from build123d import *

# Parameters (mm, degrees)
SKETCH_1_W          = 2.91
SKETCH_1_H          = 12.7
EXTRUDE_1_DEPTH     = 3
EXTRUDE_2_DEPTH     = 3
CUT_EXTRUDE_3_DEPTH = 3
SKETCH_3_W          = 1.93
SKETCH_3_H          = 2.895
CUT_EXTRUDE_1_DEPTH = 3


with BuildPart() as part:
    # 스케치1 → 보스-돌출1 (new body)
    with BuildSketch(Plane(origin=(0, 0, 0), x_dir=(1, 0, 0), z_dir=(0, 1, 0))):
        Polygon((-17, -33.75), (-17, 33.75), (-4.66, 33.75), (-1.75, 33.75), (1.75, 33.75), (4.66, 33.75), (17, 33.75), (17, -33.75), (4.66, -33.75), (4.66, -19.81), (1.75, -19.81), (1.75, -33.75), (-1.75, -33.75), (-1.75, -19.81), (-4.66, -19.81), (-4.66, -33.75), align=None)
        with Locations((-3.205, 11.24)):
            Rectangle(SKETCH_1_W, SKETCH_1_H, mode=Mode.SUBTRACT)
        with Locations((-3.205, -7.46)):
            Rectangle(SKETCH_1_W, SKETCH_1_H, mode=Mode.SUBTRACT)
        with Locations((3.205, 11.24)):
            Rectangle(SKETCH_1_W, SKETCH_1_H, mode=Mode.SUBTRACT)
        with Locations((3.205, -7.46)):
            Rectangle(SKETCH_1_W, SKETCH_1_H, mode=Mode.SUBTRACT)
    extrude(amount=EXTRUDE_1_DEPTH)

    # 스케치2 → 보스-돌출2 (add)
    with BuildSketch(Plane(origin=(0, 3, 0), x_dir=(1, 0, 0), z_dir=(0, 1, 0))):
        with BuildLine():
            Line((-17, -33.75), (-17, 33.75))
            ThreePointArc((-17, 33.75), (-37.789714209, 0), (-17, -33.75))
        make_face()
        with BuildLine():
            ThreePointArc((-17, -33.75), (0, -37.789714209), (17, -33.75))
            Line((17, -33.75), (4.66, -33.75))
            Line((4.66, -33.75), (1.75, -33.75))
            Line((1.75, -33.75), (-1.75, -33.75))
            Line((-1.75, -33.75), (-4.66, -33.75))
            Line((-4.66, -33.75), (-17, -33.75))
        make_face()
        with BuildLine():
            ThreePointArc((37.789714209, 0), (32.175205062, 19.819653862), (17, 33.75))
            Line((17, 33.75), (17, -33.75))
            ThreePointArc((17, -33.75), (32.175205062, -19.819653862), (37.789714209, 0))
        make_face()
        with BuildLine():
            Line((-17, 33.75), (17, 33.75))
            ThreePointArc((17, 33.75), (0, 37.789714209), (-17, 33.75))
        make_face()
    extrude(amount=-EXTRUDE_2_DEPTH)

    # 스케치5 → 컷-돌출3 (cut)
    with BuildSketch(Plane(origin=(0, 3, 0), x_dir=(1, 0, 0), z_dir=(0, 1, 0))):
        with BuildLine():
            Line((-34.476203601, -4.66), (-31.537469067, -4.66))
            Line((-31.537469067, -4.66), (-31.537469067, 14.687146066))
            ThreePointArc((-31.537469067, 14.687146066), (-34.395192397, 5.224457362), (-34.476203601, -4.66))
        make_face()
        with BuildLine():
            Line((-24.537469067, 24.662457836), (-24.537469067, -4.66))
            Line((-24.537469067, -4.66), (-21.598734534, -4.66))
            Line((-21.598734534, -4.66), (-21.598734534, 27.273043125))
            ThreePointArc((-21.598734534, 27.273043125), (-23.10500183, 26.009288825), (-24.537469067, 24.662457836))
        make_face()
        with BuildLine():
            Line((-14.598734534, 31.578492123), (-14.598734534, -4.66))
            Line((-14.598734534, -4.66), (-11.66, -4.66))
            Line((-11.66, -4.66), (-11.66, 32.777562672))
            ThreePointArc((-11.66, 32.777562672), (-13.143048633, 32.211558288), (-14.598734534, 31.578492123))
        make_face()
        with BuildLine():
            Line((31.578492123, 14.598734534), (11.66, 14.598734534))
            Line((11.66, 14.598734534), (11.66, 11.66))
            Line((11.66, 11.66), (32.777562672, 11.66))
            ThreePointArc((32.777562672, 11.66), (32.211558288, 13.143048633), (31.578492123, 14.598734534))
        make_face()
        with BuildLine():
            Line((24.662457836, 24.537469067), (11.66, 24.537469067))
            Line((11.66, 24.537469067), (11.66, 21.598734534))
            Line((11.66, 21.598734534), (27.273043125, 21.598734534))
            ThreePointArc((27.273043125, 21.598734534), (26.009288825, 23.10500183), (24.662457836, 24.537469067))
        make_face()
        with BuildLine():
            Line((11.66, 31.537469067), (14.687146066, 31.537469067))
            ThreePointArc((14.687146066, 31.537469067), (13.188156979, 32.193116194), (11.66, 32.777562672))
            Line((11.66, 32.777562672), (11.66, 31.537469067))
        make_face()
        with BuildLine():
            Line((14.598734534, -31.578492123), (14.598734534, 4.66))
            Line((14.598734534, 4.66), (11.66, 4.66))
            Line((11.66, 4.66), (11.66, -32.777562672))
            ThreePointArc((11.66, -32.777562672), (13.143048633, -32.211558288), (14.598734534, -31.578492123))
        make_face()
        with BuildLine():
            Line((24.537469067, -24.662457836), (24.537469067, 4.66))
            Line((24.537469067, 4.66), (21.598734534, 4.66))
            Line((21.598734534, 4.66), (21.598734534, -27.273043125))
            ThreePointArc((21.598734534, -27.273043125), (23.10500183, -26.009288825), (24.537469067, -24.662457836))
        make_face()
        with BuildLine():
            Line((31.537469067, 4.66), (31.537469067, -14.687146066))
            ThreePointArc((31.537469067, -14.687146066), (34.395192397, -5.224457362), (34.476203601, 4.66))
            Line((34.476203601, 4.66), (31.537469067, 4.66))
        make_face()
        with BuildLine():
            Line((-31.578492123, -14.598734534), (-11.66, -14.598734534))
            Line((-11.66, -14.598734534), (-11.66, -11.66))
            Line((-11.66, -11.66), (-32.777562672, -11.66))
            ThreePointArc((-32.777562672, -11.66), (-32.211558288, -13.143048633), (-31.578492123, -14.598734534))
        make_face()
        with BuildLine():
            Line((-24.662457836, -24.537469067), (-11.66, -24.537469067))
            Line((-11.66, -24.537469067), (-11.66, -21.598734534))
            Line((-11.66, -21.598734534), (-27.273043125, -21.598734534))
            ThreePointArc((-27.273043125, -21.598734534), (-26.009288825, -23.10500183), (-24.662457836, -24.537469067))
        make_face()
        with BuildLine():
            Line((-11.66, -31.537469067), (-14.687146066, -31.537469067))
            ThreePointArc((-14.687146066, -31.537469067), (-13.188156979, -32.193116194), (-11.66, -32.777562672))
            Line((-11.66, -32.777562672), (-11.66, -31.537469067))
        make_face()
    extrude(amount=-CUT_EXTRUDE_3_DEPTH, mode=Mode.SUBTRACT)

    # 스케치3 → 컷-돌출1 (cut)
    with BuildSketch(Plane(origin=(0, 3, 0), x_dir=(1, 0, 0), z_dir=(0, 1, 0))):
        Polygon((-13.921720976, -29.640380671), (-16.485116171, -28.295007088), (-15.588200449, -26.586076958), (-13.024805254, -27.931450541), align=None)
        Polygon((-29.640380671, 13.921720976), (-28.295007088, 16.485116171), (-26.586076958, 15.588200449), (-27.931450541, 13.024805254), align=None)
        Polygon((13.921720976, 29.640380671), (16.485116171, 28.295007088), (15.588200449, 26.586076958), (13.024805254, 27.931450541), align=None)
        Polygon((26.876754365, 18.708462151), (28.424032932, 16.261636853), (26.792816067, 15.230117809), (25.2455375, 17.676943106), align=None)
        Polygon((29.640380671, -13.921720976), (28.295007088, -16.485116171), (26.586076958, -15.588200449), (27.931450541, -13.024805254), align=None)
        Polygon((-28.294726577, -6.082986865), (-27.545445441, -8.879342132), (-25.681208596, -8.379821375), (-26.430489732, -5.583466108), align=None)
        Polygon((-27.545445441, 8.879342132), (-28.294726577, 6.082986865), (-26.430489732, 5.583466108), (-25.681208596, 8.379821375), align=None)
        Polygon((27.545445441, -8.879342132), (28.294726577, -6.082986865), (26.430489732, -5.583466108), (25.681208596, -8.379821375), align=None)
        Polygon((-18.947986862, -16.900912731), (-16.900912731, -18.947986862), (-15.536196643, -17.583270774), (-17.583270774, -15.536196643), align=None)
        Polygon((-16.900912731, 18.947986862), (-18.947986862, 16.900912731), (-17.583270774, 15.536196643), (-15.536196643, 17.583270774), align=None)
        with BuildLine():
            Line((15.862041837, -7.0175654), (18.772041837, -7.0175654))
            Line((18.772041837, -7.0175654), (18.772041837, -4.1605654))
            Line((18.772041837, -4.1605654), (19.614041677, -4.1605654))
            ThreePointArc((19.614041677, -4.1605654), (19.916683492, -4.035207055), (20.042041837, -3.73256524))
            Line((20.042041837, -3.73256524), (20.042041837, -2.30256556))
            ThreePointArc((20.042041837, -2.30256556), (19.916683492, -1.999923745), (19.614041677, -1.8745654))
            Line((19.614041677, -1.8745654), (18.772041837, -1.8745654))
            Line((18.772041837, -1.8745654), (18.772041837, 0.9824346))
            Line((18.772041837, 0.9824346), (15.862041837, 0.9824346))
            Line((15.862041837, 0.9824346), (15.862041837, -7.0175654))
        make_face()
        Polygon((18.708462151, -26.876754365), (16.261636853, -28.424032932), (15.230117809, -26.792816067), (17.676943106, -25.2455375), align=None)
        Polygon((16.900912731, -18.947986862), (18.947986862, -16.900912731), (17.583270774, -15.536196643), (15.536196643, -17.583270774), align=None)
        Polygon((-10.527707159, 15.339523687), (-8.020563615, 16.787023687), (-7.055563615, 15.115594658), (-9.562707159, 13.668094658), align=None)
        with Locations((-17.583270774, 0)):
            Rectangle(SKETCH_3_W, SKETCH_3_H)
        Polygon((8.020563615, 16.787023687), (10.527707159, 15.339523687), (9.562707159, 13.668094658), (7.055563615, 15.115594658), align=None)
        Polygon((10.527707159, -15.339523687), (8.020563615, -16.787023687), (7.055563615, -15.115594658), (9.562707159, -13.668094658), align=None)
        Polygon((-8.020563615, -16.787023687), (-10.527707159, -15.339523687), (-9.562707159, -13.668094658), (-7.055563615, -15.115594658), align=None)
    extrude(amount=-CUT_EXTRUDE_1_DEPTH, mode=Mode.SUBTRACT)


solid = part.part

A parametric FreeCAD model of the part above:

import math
import FreeCAD as App
import Part
import Sketcher
from FreeCAD import Vector
Q = App.Units.Quantity


def add_polygon(sketch, points):
    """Adds a closed chain of lines whose ends are joined by coincident constraints."""
    first, n = sketch.GeometryCount, len(points)
    for a, b in zip(points, points[1:] + points[:1]):
        sketch.addGeometry(Part.LineSegment(App.Vector(*a, 0), App.Vector(*b, 0)), False)
    for i in range(n):
        sketch.addConstraint(Sketcher.Constraint("Coincident", first + i, 2, first + (i + 1) % n, 1))

doc = App.newDocument("Part")
body = doc.addObject("PartDesign::Body", "Body")

sketch1 = body.newObject("Sketcher::SketchObject", "Sketch")
sketch1.AttachmentSupport = (doc.getObject("XZ_Plane"), [""])
sketch1.MapMode = "FlatFace"
add_polygon(sketch1, [(-17, -33.75), (-17, 33.75), (-4.66, 33.75), (-4.66, 19.81), (-1.75, 19.81), (-1.75, 33.75), (1.75, 33.75), (1.75, 19.81), (4.66, 19.81), (4.66, 33.75), (17, 33.75), (17, -33.75)])
add_polygon(sketch1, [(1.75, 13.81), (1.75, 1.11), (4.66, 1.11), (4.66, 13.81)])
add_polygon(sketch1, [(-4.66, 13.81), (-4.66, 1.11), (-1.75, 1.11), (-1.75, 13.81)])
add_polygon(sketch1, [(1.75, -4.89), (1.75, -17.59), (4.66, -17.59), (4.66, -4.89)])
add_polygon(sketch1, [(-4.66, -4.89), (-4.66, -17.59), (-1.75, -17.59), (-1.75, -4.89)])
sketch1.addConstraint(Sketcher.Constraint("Vertical", 0))
sketch1.addConstraint(Sketcher.Constraint("Horizontal", 1))
sketch1.addConstraint(Sketcher.Constraint("Vertical", 2))
sketch1.addConstraint(Sketcher.Constraint("Horizontal", 3))
sketch1.addConstraint(Sketcher.Constraint("Vertical", 4))
sketch1.addConstraint(Sketcher.Constraint("Horizontal", 5))
sketch1.addConstraint(Sketcher.Constraint("Vertical", 6))
sketch1.addConstraint(Sketcher.Constraint("Horizontal", 7))
sketch1.addConstraint(Sketcher.Constraint("Vertical", 8))
sketch1.addConstraint(Sketcher.Constraint("Horizontal", 9))
sketch1.addConstraint(Sketcher.Constraint("Vertical", 10))
sketch1.addConstraint(Sketcher.Constraint("Horizontal", 11))
sketch1.addConstraint(Sketcher.Constraint("Vertical", 12))
sketch1.addConstraint(Sketcher.Constraint("Horizontal", 13))
sketch1.addConstraint(Sketcher.Constraint("Vertical", 14))
sketch1.addConstraint(Sketcher.Constraint("Horizontal", 15))
sketch1.addConstraint(Sketcher.Constraint("Vertical", 16))
sketch1.addConstraint(Sketcher.Constraint("Horizontal", 17))
sketch1.addConstraint(Sketcher.Constraint("Vertical", 18))
sketch1.addConstraint(Sketcher.Constraint("Horizontal", 19))
sketch1.addConstraint(Sketcher.Constraint("Vertical", 20))
sketch1.addConstraint(Sketcher.Constraint("Horizontal", 21))
sketch1.addConstraint(Sketcher.Constraint("Vertical", 22))
sketch1.addConstraint(Sketcher.Constraint("Horizontal", 23))
sketch1.addConstraint(Sketcher.Constraint("Vertical", 24))
sketch1.addConstraint(Sketcher.Constraint("Horizontal", 25))
sketch1.addConstraint(Sketcher.Constraint("Vertical", 26))
sketch1.addConstraint(Sketcher.Constraint("Horizontal", 27))
sketch1.addConstraint(Sketcher.Constraint("Symmetric", 0, 2, 10, 2, -1, 1))
sketch1.addConstraint(Sketcher.Constraint("Symmetric", 3, 2, 6, 2, -2))
sketch1.addConstraint(Sketcher.Constraint("Symmetric", 1, 2, 8, 2, -2))
sketch1.addConstraint(Sketcher.Constraint("Symmetric", 13, 2, 16, 2, -2))
sketch1.addConstraint(Sketcher.Constraint("Symmetric", 15, 2, 18, 2, -2))
sketch1.addConstraint(Sketcher.Constraint("Symmetric", 21, 2, 24, 2, -2))
sketch1.addConstraint(Sketcher.Constraint("Symmetric", 23, 2, 26, 2, -2))
sketch1.addConstraint(Sketcher.Constraint("Horizontal", 1, 2, 4, 2))
sketch1.addConstraint(Sketcher.Constraint("Vertical", 6, 2, 12, 2))
sketch1.addConstraint(Sketcher.Constraint("Vertical", 8, 2, 13, 2))
sketch1.addConstraint(Sketcher.Constraint("Vertical", 15, 2, 20, 2))
sketch1.addConstraint(Sketcher.Constraint("Vertical", 14, 2, 21, 2))
sketch1.addConstraint(Sketcher.Constraint("Equal", 18, 20))
sketch1.addConstraint(Sketcher.Constraint("DistanceX", 11, 2, 11, 1, 34.0))
sketch1.addConstraint(Sketcher.Constraint("DistanceX", 5, 1, 5, 2, 3.5))
sketch1.addConstraint(Sketcher.Constraint("DistanceY", 0, 1, 0, 2, 67.5))
sketch1.addConstraint(Sketcher.Constraint("DistanceY", 12, 2, 12, 1, 12.7))
sketch1.addConstraint(Sketcher.Constraint("DistanceY", 14, 2, 7, 2, 6.0))
sketch1.addConstraint(Sketcher.Constraint("DistanceY", 22, 2, 13, 2, 6.0))
sketch1.addConstraint(Sketcher.Constraint("DistanceX", 1, 1, 1, 2, 12.34))
sketch1.addConstraint(Sketcher.Constraint("DistanceY", 2, 2, 2, 1, 13.94))
pad1 = body.newObject("PartDesign::Pad", "Pad")
pad1.Profile = sketch1
pad1.Length = 3
pad1.Reversed = True

sketch2 = body.newObject("Sketcher::SketchObject", "Sketch001")
sketch2.AttachmentSupport = (doc.getObject("XZ_Plane"), [""])
sketch2.MapMode = "FlatFace"
sketch2.AttachmentOffset = App.Placement(Vector(0, 0, -3), App.Rotation())
sketch2.addGeometry(Part.LineSegment(Vector(-17, 33.75, 0), Vector(-17, -33.75, 0)), False)
sketch2.addGeometry(Part.ArcOfCircle(Part.Circle(Vector(0, 0, 0), Vector(0, 0, 1), 37.789714), math.radians(116.734565), math.radians(243.265435)), False)
sketch2.addGeometry(Part.ArcOfCircle(Part.Circle(Vector(0, 0, 0), Vector(0, 0, 1), 37.789714), math.radians(63.265435), math.radians(116.734565)), False)
sketch2.addGeometry(Part.LineSegment(Vector(17, 33.75, 0), Vector(-17, 33.75, 0)), False)
sketch2.addGeometry(Part.ArcOfCircle(Part.Circle(Vector(0, 0, 0), Vector(0, 0, 1), 37.789714), math.radians(-63.265435), math.radians(0)), False)
sketch2.addGeometry(Part.LineSegment(Vector(17, -33.75, 0), Vector(17, 33.75, 0)), False)
sketch2.addGeometry(Part.ArcOfCircle(Part.Circle(Vector(0, 0, 0), Vector(0, 0, 1), 37.789714), math.radians(0), math.radians(63.265435)), False)
sketch2.addGeometry(Part.LineSegment(Vector(-17, -33.75, 0), Vector(17, -33.75, 0)), False)
sketch2.addGeometry(Part.ArcOfCircle(Part.Circle(Vector(0, 0, 0), Vector(0, 0, 1), 37.789714), math.radians(-116.734565), math.radians(-63.265435)), False)
sketch2.addConstraint(Sketcher.Constraint("Coincident", 0, 1, 1, 1))
sketch2.addConstraint(Sketcher.Constraint("Coincident", 1, 2, 0, 2))
sketch2.addConstraint(Sketcher.Constraint("Coincident", 2, 1, 3, 1))
sketch2.addConstraint(Sketcher.Constraint("Coincident", 3, 2, 2, 2))
sketch2.addConstraint(Sketcher.Constraint("Coincident", 4, 1, 5, 1))
sketch2.addConstraint(Sketcher.Constraint("Coincident", 5, 2, 6, 2))
sketch2.addConstraint(Sketcher.Constraint("Tangent", 6, 1, 4, 2))
sketch2.addConstraint(Sketcher.Constraint("Coincident", 7, 1, 8, 1))
sketch2.addConstraint(Sketcher.Constraint("Coincident", 8, 2, 7, 2))
sketch2.addConstraint(Sketcher.Constraint("Vertical", 0))
sketch2.addConstraint(Sketcher.Constraint("Horizontal", 3))
sketch2.addConstraint(Sketcher.Constraint("Vertical", 5))
sketch2.addConstraint(Sketcher.Constraint("Horizontal", 7))
sketch2.addConstraint(Sketcher.Constraint("Coincident", 1, 3, -1, 1))
sketch2.addConstraint(Sketcher.Constraint("Coincident", 2, 3, -1, 1))
sketch2.addConstraint(Sketcher.Constraint("Coincident", 4, 3, -1, 1))
sketch2.addConstraint(Sketcher.Constraint("Coincident", 8, 3, -1, 1))
sketch2.addConstraint(Sketcher.Constraint("Coincident", 3, 2, 0, 1))
sketch2.addConstraint(Sketcher.Constraint("Coincident", 5, 2, 2, 1))
sketch2.addConstraint(Sketcher.Constraint("Coincident", 7, 1, 1, 2))
sketch2.addConstraint(Sketcher.Constraint("Equal", 2, 4))
sketch2.addConstraint(Sketcher.Constraint("PointOnObject", 6, 1, -1))
sketch2.addConstraint(Sketcher.Constraint("DistanceX", 3, 2, 3, 1, 34.0))
sketch2.addConstraint(Sketcher.Constraint("DistanceY", 0, 2, 0, 1, 67.5))
pad2 = body.newObject("PartDesign::Pad", "Pad001")
pad2.Profile = sketch2
pad2.Length = 3

sketch3 = body.newObject("Sketcher::SketchObject", "Sketch002")
sketch3.AttachmentSupport = (doc.getObject("XZ_Plane"), [""])
sketch3.MapMode = "FlatFace"
sketch3.AttachmentOffset = App.Placement(Vector(0, 0, -3), App.Rotation())
sketch3.addGeometry(Part.LineSegment(Vector(-34.476204, 4.66, 0), Vector(-31.537469, 4.66, 0)), False)
sketch3.addGeometry(Part.LineSegment(Vector(-31.537469, 4.66, 0), Vector(-31.537469, -14.687146, 0)), False)
sketch3.addGeometry(Part.ArcOfCircle(Part.Circle(Vector(0, 0, 0), Vector(0, 0, 1), 34.789714), math.radians(172.302229), math.radians(204.971615)), False)
sketch3.addGeometry(Part.LineSegment(Vector(-24.537469, -24.662458, 0), Vector(-24.537469, 4.66, 0)), False)
sketch3.addGeometry(Part.LineSegment(Vector(-24.537469, 4.66, 0), Vector(-21.598735, 4.66, 0)), False)
sketch3.addGeometry(Part.LineSegment(Vector(-21.598735, 4.66, 0), Vector(-21.598735, -27.273043, 0)), False)
sketch3.addGeometry(Part.ArcOfCircle(Part.Circle(Vector(0, 0, 0), Vector(0, 0, 1), 34.789714), math.radians(-134.854445), math.radians(-128.377267)), False)
sketch3.addGeometry(Part.LineSegment(Vector(-14.598735, -31.578492, 0), Vector(-14.598735, 4.66, 0)), False)
sketch3.addGeometry(Part.LineSegment(Vector(-14.598735, 4.66, 0), Vector(-11.66, 4.66, 0)), False)
sketch3.addGeometry(Part.LineSegment(Vector(-11.66, 4.66, 0), Vector(-11.66, -32.777563, 0)), False)
sketch3.addGeometry(Part.ArcOfCircle(Part.Circle(Vector(0, 0, 0), Vector(0, 0, 1), 34.789715), math.radians(-114.811097), math.radians(-109.582057)), False)
sketch3.addGeometry(Part.LineSegment(Vector(31.578492, -14.598735, 0), Vector(11.66, -14.598735, 0)), False)
sketch3.addGeometry(Part.LineSegment(Vector(11.66, -14.598735, 0), Vector(11.66, -11.66, 0)), False)
sketch3.addGeometry(Part.LineSegment(Vector(11.66, -11.66, 0), Vector(32.777563, -11.66, 0)), False)
sketch3.addGeometry(Part.ArcOfCircle(Part.Circle(Vector(0, 0, 0), Vector(0, 0, 1), 34.789715), math.radians(-24.811097), math.radians(-19.582057)), False)
sketch3.addGeometry(Part.LineSegment(Vector(24.662458, -24.537469, 0), Vector(11.66, -24.537469, 0)), False)
sketch3.addGeometry(Part.LineSegment(Vector(11.66, -24.537469, 0), Vector(11.66, -21.598735, 0)), False)
sketch3.addGeometry(Part.LineSegment(Vector(11.66, -21.598735, 0), Vector(27.273043, -21.598735, 0)), False)
sketch3.addGeometry(Part.ArcOfCircle(Part.Circle(Vector(0, 0, 0), Vector(0, 0, 1), 34.789714), math.radians(-44.854445), math.radians(-38.377267)), False)
sketch3.addGeometry(Part.LineSegment(Vector(11.66, -31.537469, 0), Vector(14.687146, -31.537469, 0)), False)
sketch3.addGeometry(Part.ArcOfCircle(Part.Circle(Vector(0, -0.000001, 0), Vector(0, 0, 1), 34.789713), math.radians(-70.417943), math.radians(-65.028385)), False)
sketch3.addGeometry(Part.LineSegment(Vector(11.66, -32.777563, 0), Vector(11.66, -31.537469, 0)), False)
sketch3.addGeometry(Part.LineSegment(Vector(14.598735, 31.578492, 0), Vector(14.598735, -4.66, 0)), False)
sketch3.addGeometry(Part.LineSegment(Vector(14.598735, -4.66, 0), Vector(11.66, -4.66, 0)), False)
sketch3.addGeometry(Part.LineSegment(Vector(11.66, -4.66, 0), Vector(11.66, 32.777563, 0)), False)
sketch3.addGeometry(Part.ArcOfCircle(Part.Circle(Vector(0, 0, 0), Vector(0, 0, 1), 34.789715), math.radians(65.188903), math.radians(70.417943)), False)
sketch3.addGeometry(Part.LineSegment(Vector(24.537469, 24.662458, 0), Vector(24.537469, -4.66, 0)), False)
sketch3.addGeometry(Part.LineSegment(Vector(24.537469, -4.66, 0), Vector(21.598735, -4.66, 0)), False)
sketch3.addGeometry(Part.LineSegment(Vector(21.598735, -4.66, 0), Vector(21.598735, 27.273043, 0)), False)
sketch3.addGeometry(Part.ArcOfCircle(Part.Circle(Vector(0, 0, 0), Vector(0, 0, 1), 34.789714), math.radians(45.145555), math.radians(51.622733)), False)
sketch3.addGeometry(Part.LineSegment(Vector(31.537469, -4.66, 0), Vector(31.537469, 14.687146, 0)), False)
sketch3.addGeometry(Part.ArcOfCircle(Part.Circle(Vector(0, 0, 0), Vector(0, 0, 1), 34.789714), math.radians(-7.697771), math.radians(24.971615)), False)
sketch3.addGeometry(Part.LineSegment(Vector(34.476204, -4.66, 0), Vector(31.537469, -4.66, 0)), False)
sketch3.addGeometry(Part.LineSegment(Vector(-31.578492, 14.598735, 0), Vector(-11.66, 14.598735, 0)), False)
sketch3.addGeometry(Part.LineSegment(Vector(-11.66, 14.598735, 0), Vector(-11.66, 11.66, 0)), False)
sketch3.addGeometry(Part.LineSegment(Vector(-11.66, 11.66, 0), Vector(-32.777563, 11.66, 0)), False)
sketch3.addGeometry(Part.ArcOfCircle(Part.Circle(Vector(0, 0, 0), Vector(0, 0, 1), 34.789715), math.radians(155.188903), math.radians(160.417943)), False)
sketch3.addGeometry(Part.LineSegment(Vector(-24.662458, 24.537469, 0), Vector(-11.66, 24.537469, 0)), False)
sketch3.addGeometry(Part.LineSegment(Vector(-11.66, 24.537469, 0), Vector(-11.66, 21.598735, 0)), False)
sketch3.addGeometry(Part.LineSegment(Vector(-11.66, 21.598735, 0), Vector(-27.273043, 21.598735, 0)), False)
sketch3.addGeometry(Part.ArcOfCircle(Part.Circle(Vector(0, 0, 0), Vector(0, 0, 1), 34.789714), math.radians(135.145555), math.radians(141.622733)), False)
sketch3.addGeometry(Part.LineSegment(Vector(-11.66, 31.537469, 0), Vector(-14.687146, 31.537469, 0)), False)
sketch3.addGeometry(Part.ArcOfCircle(Part.Circle(Vector(0, 0.000001, 0), Vector(0, 0, 1), 34.789713), math.radians(109.582057), math.radians(114.971615)), False)
sketch3.addGeometry(Part.LineSegment(Vector(-11.66, 32.777563, 0), Vector(-11.66, 31.537469, 0)), False)
sketch3.addConstraint(Sketcher.Constraint("Coincident", 0, 2, 1, 1))
sketch3.addConstraint(Sketcher.Constraint("Coincident", 1, 2, 2, 2))
sketch3.addConstraint(Sketcher.Constraint("Coincident", 2, 1, 0, 1))
sketch3.addConstraint(Sketcher.Constraint("Coincident", 3, 2, 4, 1))
sketch3.addConstraint(Sketcher.Constraint("Coincident", 4, 2, 5, 1))
sketch3.addConstraint(Sketcher.Constraint("Coincident", 5, 2, 6, 2))
sketch3.addConstraint(Sketcher.Constraint("Coincident", 6, 1, 3, 1))
sketch3.addConstraint(Sketcher.Constraint("Coincident", 7, 2, 8, 1))
sketch3.addConstraint(Sketcher.Constraint("Coincident", 8, 2, 9, 1))
sketch3.addConstraint(Sketcher.Constraint("Coincident", 9, 2, 10, 2))
sketch3.addConstraint(Sketcher.Constraint("Coincident", 10, 1, 7, 1))
sketch3.addConstraint(Sketcher.Constraint("Coincident", 11, 2, 12, 1))
sketch3.addConstraint(Sketcher.Constraint("Coincident", 12, 2, 13, 1))
sketch3.addConstraint(Sketcher.Constraint("Coincident", 13, 2, 14, 2))
sketch3.addConstraint(Sketcher.Constraint("Coincident", 14, 1, 11, 1))
sketch3.addConstraint(Sketcher.Constraint("Coincident", 15, 2, 16, 1))
sketch3.addConstraint(Sketcher.Constraint("Coincident", 16, 2, 17, 1))
sketch3.addConstraint(Sketcher.Constraint("Coincident", 17, 2, 18, 2))
sketch3.addConstraint(Sketcher.Constraint("Coincident", 18, 1, 15, 1))
sketch3.addConstraint(Sketcher.Constraint("Coincident", 19, 2, 20, 2))
sketch3.addConstraint(Sketcher.Constraint("Coincident", 20, 1, 21, 1))
sketch3.addConstraint(Sketcher.Constraint("Coincident", 21, 2, 19, 1))
sketch3.addConstraint(Sketcher.Constraint("Coincident", 22, 2, 23, 1))
sketch3.addConstraint(Sketcher.Constraint("Coincident", 23, 2, 24, 1))
sketch3.addConstraint(Sketcher.Constraint("Coincident", 24, 2, 25, 2))
sketch3.addConstraint(Sketcher.Constraint("Coincident", 25, 1, 22, 1))
sketch3.addConstraint(Sketcher.Constraint("Coincident", 26, 2, 27, 1))
sketch3.addConstraint(Sketcher.Constraint("Coincident", 27, 2, 28, 1))
sketch3.addConstraint(Sketcher.Constraint("Coincident", 28, 2, 29, 2))
sketch3.addConstraint(Sketcher.Constraint("Coincident", 29, 1, 26, 1))
sketch3.addConstraint(Sketcher.Constraint("Coincident", 30, 2, 31, 2))
sketch3.addConstraint(Sketcher.Constraint("Coincident", 31, 1, 32, 1))
sketch3.addConstraint(Sketcher.Constraint("Coincident", 32, 2, 30, 1))
sketch3.addConstraint(Sketcher.Constraint("Coincident", 33, 2, 34, 1))
sketch3.addConstraint(Sketcher.Constraint("Coincident", 34, 2, 35, 1))
sketch3.addConstraint(Sketcher.Constraint("Coincident", 35, 2, 36, 2))
sketch3.addConstraint(Sketcher.Constraint("Coincident", 36, 1, 33, 1))
sketch3.addConstraint(Sketcher.Constraint("Coincident", 37, 2, 38, 1))
sketch3.addConstraint(Sketcher.Constraint("Coincident", 38, 2, 39, 1))
sketch3.addConstraint(Sketcher.Constraint("Coincident", 39, 2, 40, 2))
sketch3.addConstraint(Sketcher.Constraint("Coincident", 40, 1, 37, 1))
sketch3.addConstraint(Sketcher.Constraint("Coincident", 41, 2, 42, 2))
sketch3.addConstraint(Sketcher.Constraint("Coincident", 42, 1, 43, 1))
sketch3.addConstraint(Sketcher.Constraint("Coincident", 43, 2, 41, 1))
sketch3.addConstraint(Sketcher.Constraint("Horizontal", 0))
sketch3.addConstraint(Sketcher.Constraint("Vertical", 1))
sketch3.addConstraint(Sketcher.Constraint("Vertical", 3))
sketch3.addConstraint(Sketcher.Constraint("Horizontal", 4))
sketch3.addConstraint(Sketcher.Constraint("Vertical", 5))
sketch3.addConstraint(Sketcher.Constraint("Vertical", 7))
sketch3.addConstraint(Sketcher.Constraint("Horizontal", 8))
sketch3.addConstraint(Sketcher.Constraint("Vertical", 9))
sketch3.addConstraint(Sketcher.Constraint("Horizontal", 11))
sketch3.addConstraint(Sketcher.Constraint("Vertical", 12))
sketch3.addConstraint(Sketcher.Constraint("Horizontal", 13))
sketch3.addConstraint(Sketcher.Constraint("Horizontal", 15))
sketch3.addConstraint(Sketcher.Constraint("Vertical", 16))
sketch3.addConstraint(Sketcher.Constraint("Horizontal", 17))
sketch3.addConstraint(Sketcher.Constraint("Horizontal", 19))
sketch3.addConstraint(Sketcher.Constraint("Vertical", 21))
sketch3.addConstraint(Sketcher.Constraint("Vertical", 22))
sketch3.addConstraint(Sketcher.Constraint("Horizontal", 23))
sketch3.addConstraint(Sketcher.Constraint("Vertical", 24))
sketch3.addConstraint(Sketcher.Constraint("Vertical", 26))
sketch3.addConstraint(Sketcher.Constraint("Horizontal", 27))
sketch3.addConstraint(Sketcher.Constraint("Vertical", 28))
sketch3.addConstraint(Sketcher.Constraint("Vertical", 30))
sketch3.addConstraint(Sketcher.Constraint("Horizontal", 32))
sketch3.addConstraint(Sketcher.Constraint("Horizontal", 33))
sketch3.addConstraint(Sketcher.Constraint("Vertical", 34))
sketch3.addConstraint(Sketcher.Constraint("Horizontal", 35))
sketch3.addConstraint(Sketcher.Constraint("Horizontal", 37))
sketch3.addConstraint(Sketcher.Constraint("Vertical", 38))
sketch3.addConstraint(Sketcher.Constraint("Horizontal", 39))
sketch3.addConstraint(Sketcher.Constraint("Horizontal", 41))
sketch3.addConstraint(Sketcher.Constraint("Vertical", 43))
sketch3.addConstraint(Sketcher.Constraint("Coincident", 2, 3, -1, 1))
sketch3.addConstraint(Sketcher.Constraint("Coincident", 6, 3, -1, 1))
sketch3.addConstraint(Sketcher.Constraint("Coincident", 10, 3, -1, 1))
sketch3.addConstraint(Sketcher.Constraint("Coincident", 14, 3, -1, 1))
sketch3.addConstraint(Sketcher.Constraint("Coincident", 18, 3, -1, 1))
sketch3.addConstraint(Sketcher.Constraint("Coincident", 20, 3, -1, 1))
sketch3.addConstraint(Sketcher.Constraint("Coincident", 25, 3, -1, 1))
sketch3.addConstraint(Sketcher.Constraint("Coincident", 29, 3, -1, 1))
sketch3.addConstraint(Sketcher.Constraint("Coincident", 31, 3, -1, 1))
sketch3.addConstraint(Sketcher.Constraint("Coincident", 36, 3, -1, 1))
sketch3.addConstraint(Sketcher.Constraint("Coincident", 40, 3, -1, 1))
sketch3.addConstraint(Sketcher.Constraint("Coincident", 42, 3, -1, 1))
sketch3.addConstraint(Sketcher.Constraint("Equal", 2, 6))
sketch3.addConstraint(Sketcher.Constraint("Equal", 6, 10))
sketch3.addConstraint(Sketcher.Constraint("Equal", 10, 14))
sketch3.addConstraint(Sketcher.Constraint("Equal", 14, 18))
sketch3.addConstraint(Sketcher.Constraint("Equal", 18, 20))
sketch3.addConstraint(Sketcher.Constraint("Equal", 20, 25))
sketch3.addConstraint(Sketcher.Constraint("Equal", 25, 29))
sketch3.addConstraint(Sketcher.Constraint("Equal", 29, 31))
sketch3.addConstraint(Sketcher.Constraint("Equal", 31, 36))
sketch3.addConstraint(Sketcher.Constraint("Equal", 36, 40))
sketch3.addConstraint(Sketcher.Constraint("Equal", 40, 42))
sketch3.addConstraint(Sketcher.Constraint("Symmetric", 7, 2, 22, 2, -1, 1))
sketch3.addConstraint(Sketcher.Constraint("Symmetric", 3, 2, 26, 2, -1, 1))
sketch3.addConstraint(Sketcher.Constraint("Symmetric", 0, 2, 32, 2, -1, 1))
sketch3.addConstraint(Sketcher.Constraint("Symmetric", 11, 2, 33, 2, -1, 1))
sketch3.addConstraint(Sketcher.Constraint("Symmetric", 15, 2, 37, 2, -1, 1))
sketch3.addConstraint(Sketcher.Constraint("Symmetric", 21, 2, 43, 2, -1, 1))
sketch3.addConstraint(Sketcher.Constraint("Horizontal", 2, 1, 3, 2))
sketch3.addConstraint(Sketcher.Constraint("Horizontal", 4, 2, 7, 2))
sketch3.addConstraint(Sketcher.Constraint("Horizontal", 9, 2, 20, 1))
sketch3.addConstraint(Sketcher.Constraint("Horizontal", 24, 2, 42, 1))
sketch3.addConstraint(Sketcher.Constraint("Vertical", 12, 2, 15, 2))
sketch3.addConstraint(Sketcher.Constraint("Vertical", 16, 2, 20, 1))
sketch3.addConstraint(Sketcher.Constraint("Equal", 0, 4))
sketch3.addConstraint(Sketcher.Constraint("Equal", 4, 8))
sketch3.addConstraint(Sketcher.Constraint("Equal", 23, 27))
sketch3.addConstraint(Sketcher.Constraint("Equal", 13, 35))
sketch3.addConstraint(Sketcher.Constraint("Equal", 17, 39))
sketch3.addConstraint(Sketcher.Constraint("Equal", 32, 12))
sketch3.addConstraint(Sketcher.Constraint("Equal", 12, 16))
sketch3.addConstraint(Sketcher.Constraint("DistanceX", 0, 2, 3, 2, 7.0))
sketch3.addConstraint(Sketcher.Constraint("DistanceX", 4, 2, 7, 2, 7.0))
sketch3.addConstraint(Sketcher.Constraint("DistanceY", 16, 2, 11, 2, 7.0))
sketch3.addConstraint(Sketcher.Constraint("DistanceY", 19, 2, 15, 2, 7.0))
sketch3.addConstraint(Sketcher.Constraint("DistanceY", 12, 2, 22, 2, 7.0))
sketch3.addConstraint(Sketcher.Constraint("DistanceY", -1, 1, 0, 2, 4.66))
sketch3.addConstraint(Sketcher.Constraint("DistanceX", 8, 2, -1, 1, 11.66))
sketch3.addConstraint(Sketcher.Constraint("Radius", 2, 34.789714))
pocket1 = body.newObject("PartDesign::Pocket", "Pocket")
pocket1.Profile = sketch3
pocket1.Length = 3
pocket1.Reversed = True

sketch4 = body.newObject("Sketcher::SketchObject", "Sketch003")
sketch4.AttachmentSupport = (doc.getObject("XZ_Plane"), [""])
sketch4.MapMode = "FlatFace"
sketch4.AttachmentOffset = App.Placement(Vector(0, 0, -3), App.Rotation())
add_polygon(sketch4, [(-16.485116, 28.295007), (-13.921721, 29.640381), (-13.024805, 27.931451), (-15.5882, 26.586077)])
add_polygon(sketch4, [(-28.295007, -16.485116), (-29.640381, -13.921721), (-27.931451, -13.024805), (-26.586077, -15.5882)])
add_polygon(sketch4, [(16.485116, -28.295007), (13.921721, -29.640381), (13.024805, -27.931451), (15.5882, -26.586077)])
add_polygon(sketch4, [(28.424033, -16.261637), (26.876754, -18.708462), (25.245538, -17.676943), (26.792816, -15.230118)])
add_polygon(sketch4, [(28.295007, 16.485116), (29.640381, 13.921721), (27.931451, 13.024805), (26.586077, 15.5882)])
add_polygon(sketch4, [(-28.294727, 6.082987), (-27.545445, 8.879342), (-25.681209, 8.379821), (-26.43049, 5.583466)])
add_polygon(sketch4, [(-27.545445, -8.879342), (-28.294727, -6.082987), (-26.43049, -5.583466), (-25.681209, -8.379821)])
add_polygon(sketch4, [(27.545445, 8.879342), (28.294727, 6.082987), (26.43049, 5.583466), (25.681209, 8.379821)])
add_polygon(sketch4, [(-18.947987, 16.900913), (-16.900913, 18.947987), (-15.536197, 17.583271), (-17.583271, 15.536197)])
add_polygon(sketch4, [(-16.900913, -18.947987), (-18.947987, -16.900913), (-17.583271, -15.536197), (-15.536197, -17.583271)])
sketch4.addGeometry(Part.LineSegment(Vector(15.862042, 7.017565, 0), Vector(18.772042, 7.017565, 0)), False)
sketch4.addGeometry(Part.LineSegment(Vector(18.772042, 7.017565, 0), Vector(18.772042, 4.160565, 0)), False)
sketch4.addGeometry(Part.LineSegment(Vector(18.772042, 4.160565, 0), Vector(19.614042, 4.160565, 0)), False)
sketch4.addGeometry(Part.ArcOfCircle(Part.Circle(Vector(19.614042, 3.732565, 0), Vector(0, 0, 1), 0.428), math.radians(0), math.radians(90)), False)
sketch4.addGeometry(Part.LineSegment(Vector(20.042042, 3.732565, 0), Vector(20.042042, 2.302566, 0)), False)
sketch4.addGeometry(Part.ArcOfCircle(Part.Circle(Vector(19.614042, 2.302566, 0), Vector(0, 0, 1), 0.428), math.radians(-90), math.radians(0)), False)
sketch4.addGeometry(Part.LineSegment(Vector(19.614042, 1.874565, 0), Vector(18.772042, 1.874565, 0)), False)
sketch4.addGeometry(Part.LineSegment(Vector(18.772042, 1.874565, 0), Vector(18.772042, -0.982435, 0)), False)
sketch4.addGeometry(Part.LineSegment(Vector(18.772042, -0.982435, 0), Vector(15.862042, -0.982435, 0)), False)
sketch4.addGeometry(Part.LineSegment(Vector(15.862042, -0.982435, 0), Vector(15.862042, 7.017565, 0)), False)
add_polygon(sketch4, [(16.261637, 28.424033), (18.708462, 26.876754), (17.676943, 25.245538), (15.230118, 26.792816)])
add_polygon(sketch4, [(16.900913, 18.947987), (18.947987, 16.900913), (17.583271, 15.536197), (15.536197, 17.583271)])
add_polygon(sketch4, [(-8.020564, -16.787024), (-10.527707, -15.339524), (-9.562707, -13.668095), (-7.055564, -15.115595)])
add_polygon(sketch4, [(-18.548271, -1.4475), (-18.548271, 1.4475), (-16.618271, 1.4475), (-16.618271, -1.4475)])
add_polygon(sketch4, [(10.527707, -15.339524), (8.020564, -16.787024), (7.055564, -15.115595), (9.562707, -13.668095)])
add_polygon(sketch4, [(8.020564, 16.787024), (10.527707, 15.339524), (9.562707, 13.668095), (7.055564, 15.115595)])
add_polygon(sketch4, [(-10.527707, 15.339524), (-8.020564, 16.787024), (-7.055564, 15.115595), (-9.562707, 13.668095)])
sketch4.addConstraint(Sketcher.Constraint("Coincident", 40, 2, 41, 1))
sketch4.addConstraint(Sketcher.Constraint("Coincident", 41, 2, 42, 1))
sketch4.addConstraint(Sketcher.Constraint("Tangent", 42, 2, 43, 2))
sketch4.addConstraint(Sketcher.Constraint("Tangent", 43, 1, 44, 1))
sketch4.addConstraint(Sketcher.Constraint("Tangent", 44, 2, 45, 2))
sketch4.addConstraint(Sketcher.Constraint("Tangent", 45, 1, 46, 1))
sketch4.addConstraint(Sketcher.Constraint("Coincident", 46, 2, 47, 1))
sketch4.addConstraint(Sketcher.Constraint("Coincident", 47, 2, 48, 1))
sketch4.addConstraint(Sketcher.Constraint("Coincident", 48, 2, 49, 1))
sketch4.addConstraint(Sketcher.Constraint("Coincident", 49, 2, 40, 1))
sketch4.addConstraint(Sketcher.Constraint("Horizontal", 40))
sketch4.addConstraint(Sketcher.Constraint("Vertical", 41))
sketch4.addConstraint(Sketcher.Constraint("Horizontal", 42))
sketch4.addConstraint(Sketcher.Constraint("Vertical", 44))
sketch4.addConstraint(Sketcher.Constraint("Horizontal", 46))
sketch4.addConstraint(Sketcher.Constraint("Vertical", 47))
sketch4.addConstraint(Sketcher.Constraint("Horizontal", 48))
sketch4.addConstraint(Sketcher.Constraint("Vertical", 49))
sketch4.addConstraint(Sketcher.Constraint("Vertical", 62))
sketch4.addConstraint(Sketcher.Constraint("Horizontal", 63))
sketch4.addConstraint(Sketcher.Constraint("Vertical", 64))
sketch4.addConstraint(Sketcher.Constraint("Horizontal", 65))
sketch4.addConstraint(Sketcher.Constraint("Equal", 43, 45))
sketch4.addConstraint(Sketcher.Constraint("Symmetric", 0, 2, 8, 2, -1, 1))
sketch4.addConstraint(Sketcher.Constraint("Symmetric", 1, 2, 9, 2, -1, 1))
sketch4.addConstraint(Sketcher.Constraint("Symmetric", 2, 2, 10, 2, -1, 1))
sketch4.addConstraint(Sketcher.Constraint("Symmetric", 3, 2, 11, 2, -1, 1))
sketch4.addConstraint(Sketcher.Constraint("Symmetric", 4, 2, 16, 2, -1, 1))
sketch4.addConstraint(Sketcher.Constraint("Symmetric", 5, 2, 17, 2, -1, 1))
sketch4.addConstraint(Sketcher.Constraint("Symmetric", 6, 2, 18, 2, -1, 1))
sketch4.addConstraint(Sketcher.Constraint("Symmetric", 7, 2, 19, 2, -1, 1))
sketch4.addConstraint(Sketcher.Constraint("Symmetric", 24, 2, 28, 2, -1, 1))
sketch4.addConstraint(Sketcher.Constraint("Symmetric", 25, 2, 29, 2, -1, 1))
sketch4.addConstraint(Sketcher.Constraint("Symmetric", 26, 2, 30, 2, -1, 1))
sketch4.addConstraint(Sketcher.Constraint("Symmetric", 27, 2, 31, 2, -1, 1))
sketch4.addConstraint(Sketcher.Constraint("Symmetric", 36, 2, 54, 2, -1, 1))
sketch4.addConstraint(Sketcher.Constraint("Symmetric", 37, 2, 55, 2, -1, 1))
sketch4.addConstraint(Sketcher.Constraint("Symmetric", 38, 2, 56, 2, -1, 1))
sketch4.addConstraint(Sketcher.Constraint("Symmetric", 39, 2, 57, 2, -1, 1))
sketch4.addConstraint(Sketcher.Constraint("Symmetric", 58, 2, 70, 2, -1, 1))
sketch4.addConstraint(Sketcher.Constraint("Symmetric", 59, 2, 71, 2, -1, 1))
sketch4.addConstraint(Sketcher.Constraint("Symmetric", 60, 2, 72, 2, -1, 1))
sketch4.addConstraint(Sketcher.Constraint("Symmetric", 61, 2, 73, 2, -1, 1))
sketch4.addConstraint(Sketcher.Constraint("Symmetric", 66, 2, 74, 2, -1, 1))
sketch4.addConstraint(Sketcher.Constraint("Symmetric", 67, 2, 75, 2, -1, 1))
sketch4.addConstraint(Sketcher.Constraint("Symmetric", 68, 2, 76, 2, -1, 1))
sketch4.addConstraint(Sketcher.Constraint("Symmetric", 69, 2, 77, 2, -1, 1))
sketch4.addConstraint(Sketcher.Constraint("Symmetric", 23, 2, 28, 2, -2))
sketch4.addConstraint(Sketcher.Constraint("Symmetric", 22, 2, 29, 2, -2))
sketch4.addConstraint(Sketcher.Constraint("Symmetric", 21, 2, 30, 2, -2))
sketch4.addConstraint(Sketcher.Constraint("Symmetric", 20, 2, 31, 2, -2))
sketch4.addConstraint(Sketcher.Constraint("Symmetric", 35, 2, 54, 2, -2))
sketch4.addConstraint(Sketcher.Constraint("Symmetric", 34, 2, 55, 2, -2))
sketch4.addConstraint(Sketcher.Constraint("Symmetric", 33, 2, 56, 2, -2))
sketch4.addConstraint(Sketcher.Constraint("Symmetric", 32, 2, 57, 2, -2))
sketch4.addConstraint(Sketcher.Constraint("Symmetric", 61, 2, 66, 2, -2))
sketch4.addConstraint(Sketcher.Constraint("Symmetric", 60, 2, 67, 2, -2))
sketch4.addConstraint(Sketcher.Constraint("Symmetric", 59, 2, 68, 2, -2))
sketch4.addConstraint(Sketcher.Constraint("Symmetric", 58, 2, 69, 2, -2))
sketch4.addConstraint(Sketcher.Constraint("Perpendicular", 0, 1))
sketch4.addConstraint(Sketcher.Constraint("Perpendicular", 1, 2))
sketch4.addConstraint(Sketcher.Constraint("Perpendicular", 2, 3))
sketch4.addConstraint(Sketcher.Constraint("Parallel", 3, 4))
sketch4.addConstraint(Sketcher.Constraint("Perpendicular", 4, 5))
sketch4.addConstraint(Sketcher.Constraint("Perpendicular", 5, 6))
sketch4.addConstraint(Sketcher.Constraint("Perpendicular", 6, 7))
sketch4.addConstraint(Sketcher.Constraint("Perpendicular", 12, 13))
sketch4.addConstraint(Sketcher.Constraint("Perpendicular", 13, 14))
sketch4.addConstraint(Sketcher.Constraint("Perpendicular", 14, 15))
sketch4.addConstraint(Sketcher.Constraint("Perpendicular", 20, 21))
sketch4.addConstraint(Sketcher.Constraint("Perpendicular", 21, 22))
sketch4.addConstraint(Sketcher.Constraint("Perpendicular", 22, 23))
sketch4.addConstraint(Sketcher.Constraint("Perpendicular", 32, 33))
sketch4.addConstraint(Sketcher.Constraint("Perpendicular", 33, 34))
sketch4.addConstraint(Sketcher.Constraint("Perpendicular", 34, 35))
sketch4.addConstraint(Sketcher.Constraint("Parallel", 35, 36))
sketch4.addConstraint(Sketcher.Constraint("Parallel", 15, 50))
sketch4.addConstraint(Sketcher.Constraint("Perpendicular", 50, 51))
sketch4.addConstraint(Sketcher.Constraint("Perpendicular", 51, 52))
sketch4.addConstraint(Sketcher.Constraint("Perpendicular", 52, 53))
sketch4.addConstraint(Sketcher.Constraint("Perpendicular", 58, 59))
sketch4.addConstraint(Sketcher.Constraint("Perpendicular", 59, 60))
sketch4.addConstraint(Sketcher.Constraint("Perpendicular", 60, 61))
sketch4.addConstraint(Sketcher.Constraint("Vertical", 41, 2, 46, 2))
sketch4.addConstraint(Sketcher.Constraint("Equal", 41, 47))
sketch4.addConstraint(Sketcher.Constraint("Equal", 2, 4))
sketch4.addConstraint(Sketcher.Constraint("Equal", 3, 5))
sketch4.addConstraint(Sketcher.Constraint("Equal", 10, 12))
sketch4.addConstraint(Sketcher.Constraint("Equal", 11, 13))
sketch4.addConstraint(Sketcher.Constraint("Equal", 18, 20))
sketch4.addConstraint(Sketcher.Constraint("Equal", 19, 21))
sketch4.addConstraint(Sketcher.Constraint("Equal", 30, 32))
sketch4.addConstraint(Sketcher.Constraint("Equal", 31, 33))
sketch4.addConstraint(Sketcher.Constraint("Equal", 38, 50))
sketch4.addConstraint(Sketcher.Constraint("Equal", 39, 51))
sketch4.addConstraint(Sketcher.Constraint("Equal", 56, 58))
sketch4.addConstraint(Sketcher.Constraint("Equal", 57, 59))
sketch4.addConstraint(Sketcher.Constraint("DistanceY", 49, 1, 49, 2, 8.0))
sketch4.addConstraint(Sketcher.Constraint("Angle", 20, Q("75 deg")))
sketch4.addConstraint(Sketcher.Constraint("Angle", 58, Q("150 deg")))
sketch4.addConstraint(Sketcher.Constraint("Radius", 43, 0.428))
sketch4.addConstraint(Sketcher.Constraint("DistanceX", 40, 1, 40, 2, 2.91))
sketch4.addConstraint(Sketcher.Constraint("DistanceX", 63, 1, 63, 2, 1.93))
sketch4.addConstraint(Sketcher.Constraint("DistanceY", 44, 2, 44, 1, 1.43))
sketch4.addConstraint(Sketcher.Constraint("Distance", 1, 1.93))
sketch4.addConstraint(Sketcher.Constraint("DistanceX", 42, 1, 42, 2, 0.842))
sketch4.addConstraint(Sketcher.Constraint("DistanceY", 62, 1, 62, 2, 2.895))
sketch4.addConstraint(Sketcher.Constraint("Distance", 0, 2.895))
sketch4.addConstraint(Sketcher.Constraint("DistanceX", 2, 2, -1, 1, 15.5882))
sketch4.addConstraint(Sketcher.Constraint("DistanceY", 6, 2, -1, 1, 15.5882))
sketch4.addConstraint(Sketcher.Constraint("DistanceY", -1, 1, 62, 2, 1.4475))
sketch4.addConstraint(Sketcher.Constraint("DistanceX", -1, 1, 43, 3, 19.614042))
sketch4.addConstraint(Sketcher.Constraint("DistanceX", 0, 2, -1, 1, 13.921721))
sketch4.addConstraint(Sketcher.Constraint("DistanceY", -1, 1, 0, 2, 29.640381))
sketch4.addConstraint(Sketcher.Constraint("DistanceX", 4, 2, -1, 1, 29.640381))
sketch4.addConstraint(Sketcher.Constraint("DistanceX", 21, 2, -1, 1, 25.681209))
sketch4.addConstraint(Sketcher.Constraint("DistanceY", -1, 1, 21, 2, 8.379821))
sketch4.addConstraint(Sketcher.Constraint("DistanceY", -1, 1, 33, 2, 17.583271))
sketch4.addConstraint(Sketcher.Constraint("DistanceX", 34, 2, -1, 1, 17.583271))
sketch4.addConstraint(Sketcher.Constraint("DistanceX", 62, 2, -1, 1, 18.548271))
sketch4.addConstraint(Sketcher.Constraint("DistanceY", -1, 1, 43, 3, 3.732565))
sketch4.addConstraint(Sketcher.Constraint("DistanceX", -1, 1, 12, 2, 26.876754))
sketch4.addConstraint(Sketcher.Constraint("DistanceY", 12, 2, -1, 1, 18.708462))
sketch4.addConstraint(Sketcher.Constraint("DistanceX", -1, 1, 13, 2, 25.245538))
sketch4.addConstraint(Sketcher.Constraint("DistanceX", -1, 1, 50, 2, 18.708462))
sketch4.addConstraint(Sketcher.Constraint("DistanceY", -1, 1, 50, 2, 26.876754))
sketch4.addConstraint(Sketcher.Constraint("DistanceX", 58, 2, -1, 1, 10.527707))
sketch4.addConstraint(Sketcher.Constraint("DistanceY", 58, 2, -1, 1, 15.339524))
pocket2 = body.newObject("PartDesign::Pocket", "Pocket001")
pocket2.Profile = sketch4
pocket2.Length = 3
pocket2.Reversed = True

doc.recompute()
